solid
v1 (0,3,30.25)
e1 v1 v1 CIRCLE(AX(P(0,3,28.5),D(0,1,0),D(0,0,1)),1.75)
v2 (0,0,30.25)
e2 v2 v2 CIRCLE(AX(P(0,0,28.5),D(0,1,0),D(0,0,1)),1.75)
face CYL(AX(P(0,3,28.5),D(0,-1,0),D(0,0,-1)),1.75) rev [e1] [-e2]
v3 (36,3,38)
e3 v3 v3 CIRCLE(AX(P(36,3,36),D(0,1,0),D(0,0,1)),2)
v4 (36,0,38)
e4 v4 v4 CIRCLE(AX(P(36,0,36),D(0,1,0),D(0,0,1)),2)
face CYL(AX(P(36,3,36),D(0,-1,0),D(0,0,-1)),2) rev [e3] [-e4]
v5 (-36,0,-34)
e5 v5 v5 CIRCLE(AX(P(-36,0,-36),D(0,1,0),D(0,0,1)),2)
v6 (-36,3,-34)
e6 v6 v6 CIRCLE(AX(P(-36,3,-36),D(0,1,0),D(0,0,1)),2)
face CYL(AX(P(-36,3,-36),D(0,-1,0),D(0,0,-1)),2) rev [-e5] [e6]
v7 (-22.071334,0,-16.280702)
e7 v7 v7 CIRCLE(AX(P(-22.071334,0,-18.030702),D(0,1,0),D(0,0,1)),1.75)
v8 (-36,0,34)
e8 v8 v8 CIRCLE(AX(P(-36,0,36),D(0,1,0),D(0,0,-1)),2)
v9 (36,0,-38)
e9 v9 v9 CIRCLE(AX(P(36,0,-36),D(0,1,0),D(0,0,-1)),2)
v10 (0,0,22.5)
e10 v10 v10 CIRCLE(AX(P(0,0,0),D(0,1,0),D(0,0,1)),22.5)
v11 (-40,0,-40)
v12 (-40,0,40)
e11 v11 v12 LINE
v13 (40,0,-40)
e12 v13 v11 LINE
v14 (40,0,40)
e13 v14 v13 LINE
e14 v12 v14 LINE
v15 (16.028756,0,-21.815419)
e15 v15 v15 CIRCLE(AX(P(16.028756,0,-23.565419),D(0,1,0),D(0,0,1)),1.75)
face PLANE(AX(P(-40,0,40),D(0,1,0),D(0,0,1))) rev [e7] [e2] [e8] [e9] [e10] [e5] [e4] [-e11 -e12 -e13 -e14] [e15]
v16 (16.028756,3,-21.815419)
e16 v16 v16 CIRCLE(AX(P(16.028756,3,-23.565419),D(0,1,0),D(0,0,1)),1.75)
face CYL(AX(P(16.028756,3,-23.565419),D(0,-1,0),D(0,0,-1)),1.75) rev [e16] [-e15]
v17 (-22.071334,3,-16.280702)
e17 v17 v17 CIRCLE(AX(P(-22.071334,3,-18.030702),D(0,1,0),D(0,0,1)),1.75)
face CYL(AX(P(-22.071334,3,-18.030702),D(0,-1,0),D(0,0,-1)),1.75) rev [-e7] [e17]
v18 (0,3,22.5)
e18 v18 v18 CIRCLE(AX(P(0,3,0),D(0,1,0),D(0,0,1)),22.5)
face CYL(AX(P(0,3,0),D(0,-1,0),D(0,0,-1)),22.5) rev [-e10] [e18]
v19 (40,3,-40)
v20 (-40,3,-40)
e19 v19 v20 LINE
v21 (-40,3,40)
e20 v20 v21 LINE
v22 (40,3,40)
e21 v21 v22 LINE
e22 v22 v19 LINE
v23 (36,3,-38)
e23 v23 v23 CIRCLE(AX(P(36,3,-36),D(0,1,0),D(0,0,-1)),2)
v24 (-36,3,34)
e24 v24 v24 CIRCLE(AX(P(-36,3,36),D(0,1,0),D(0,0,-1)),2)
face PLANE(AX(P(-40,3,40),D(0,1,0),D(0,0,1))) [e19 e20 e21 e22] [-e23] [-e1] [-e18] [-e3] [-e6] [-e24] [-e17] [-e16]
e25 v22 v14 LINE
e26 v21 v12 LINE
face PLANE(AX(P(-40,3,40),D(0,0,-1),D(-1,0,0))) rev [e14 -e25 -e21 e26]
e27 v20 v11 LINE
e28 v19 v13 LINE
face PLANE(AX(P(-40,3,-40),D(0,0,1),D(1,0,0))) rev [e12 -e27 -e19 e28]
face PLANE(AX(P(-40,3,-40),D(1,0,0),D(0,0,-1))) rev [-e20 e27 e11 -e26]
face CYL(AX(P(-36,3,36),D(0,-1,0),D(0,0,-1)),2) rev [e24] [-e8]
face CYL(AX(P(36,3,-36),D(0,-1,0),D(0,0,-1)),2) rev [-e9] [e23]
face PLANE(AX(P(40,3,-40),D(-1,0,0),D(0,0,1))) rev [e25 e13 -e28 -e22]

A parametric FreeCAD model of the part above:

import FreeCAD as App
import Part
import Sketcher

V = App.Vector
Q = App.Units.Quantity


def add_polygon(sketch, points):
    """Adds a closed chain of lines whose ends are joined by coincident constraints."""
    first, n = sketch.GeometryCount, len(points)
    for a, b in zip(points, points[1:] + points[:1]):
        sketch.addGeometry(Part.LineSegment(App.Vector(*a, 0), App.Vector(*b, 0)), False)
    for i in range(n):
        sketch.addConstraint(Sketcher.Constraint("Coincident", first + i, 2, first + (i + 1) % n, 1))

doc = App.newDocument("Part")
body = doc.addObject("PartDesign::Body", "Body")

sketch1 = doc.addObject("Sketcher::SketchObject", "Sketch")
body.addObject(sketch1)
sketch1.AttachmentSupport = (doc.XZ_Plane, [""])
sketch1.MapMode = "FlatFace"
add_polygon(sketch1, [(-40, -40), (-40, 40), (40, 40), (40, -40)])
sketch1.addGeometry(Part.Circle(V(-36, 36, 0), V(0, 0, 1), 2), False)
sketch1.addGeometry(Part.Circle(V(0, 28.5, 0), V(0, 0, 1), 1.75), False)
sketch1.addGeometry(Part.Circle(V(36, 36, 0), V(0, 0, 1), 2), False)
sketch1.addGeometry(Part.Circle(V(-22.071334, -18.030702, 0), V(0, 0, 1), 1.75), False)
sketch1.addGeometry(Part.Circle(V(-36, -36, 0), V(0, 0, 1), 2), False)
sketch1.addGeometry(Part.Circle(V(0, 0, 0), V(0, 0, 1), 22.5), False)
sketch1.addGeometry(Part.Circle(V(16.028756, -23.565419, 0), V(0, 0, 1), 1.75), False)
sketch1.addGeometry(Part.Circle(V(36, -36, 0), V(0, 0, 1), 2), False)
sketch1.addConstraint(Sketcher.Constraint("Vertical", 0))
sketch1.addConstraint(Sketcher.Constraint("Horizontal", 1))
sketch1.addConstraint(Sketcher.Constraint("Vertical", 2))
sketch1.addConstraint(Sketcher.Constraint("Horizontal", 3))
sketch1.addConstraint(Sketcher.Constraint("Coincident", 9, 3, -1, 1))
sketch1.addConstraint(Sketcher.Constraint("Equal", 4, 6))
sketch1.addConstraint(Sketcher.Constraint("Equal", 5, 7))
sketch1.addConstraint(Sketcher.Constraint("Equal", 6, 8))
sketch1.addConstraint(Sketcher.Constraint("Equal", 7, 10))
sketch1.addConstraint(Sketcher.Constraint("Equal", 8, 11))
sketch1.addConstraint(Sketcher.Constraint("Symmetric", 6, 3, 8, 3, -1, 1))
sketch1.addConstraint(Sketcher.Constraint("Symmetric", 4, 3, 11, 3, -1, 1))
sketch1.addConstraint(Sketcher.Constraint("Symmetric", 0, 2, 2, 2, -1, 1))
sketch1.addConstraint(Sketcher.Constraint("Symmetric", 4, 3, 6, 3, -2))
sketch1.addConstraint(Sketcher.Constraint("PointOnObject", 5, 3, -2))
sketch1.addConstraint(Sketcher.Constraint("Equal", 3, 0))
sketch1.addConstraint(Sketcher.Constraint("Diameter", 4, Q("4 mm")))
sketch1.addConstraint(Sketcher.Constraint("Diameter", 9, Q("45 mm")))
sketch1.addConstraint(Sketcher.Constraint("Diameter", 5, Q("3.5 mm")))
sketch1.addConstraint(Sketcher.Constraint("DistanceX", 1, 1, 1, 2, Q("80 mm")))
sketch1.addConstraint(Sketcher.Constraint("DistanceX", 4, 3, -1, 1, Q("36 mm")))
sketch1.addConstraint(Sketcher.Constraint("DistanceY", -1, 1, 4, 3, Q("36 mm")))
sketch1.addConstraint(Sketcher.Constraint("DistanceY", -1, 1, 5, 3, Q("28.5 mm")))
sketch1.addConstraint(Sketcher.Constraint("DistanceY", 7, 3, -1, 1, Q("18.030702 mm")))
sketch1.addConstraint(Sketcher.Constraint("DistanceY", 10, 3, -1, 1, Q("23.565419 mm")))
sketch1.addConstraint(Sketcher.Constraint("DistanceX", 7, 3, 10, 3, Q("38.100091 mm")))
sketch1.addConstraint(Sketcher.Constraint("DistanceX", 7, 3, -1, 1, Q("22.071334 mm")))
pad1 = doc.addObject("PartDesign::Pad", "Pad")
body.addObject(pad1)
pad1.Profile = sketch1
pad1.Length = 3
pad1.Reversed = True

doc.recompute()
